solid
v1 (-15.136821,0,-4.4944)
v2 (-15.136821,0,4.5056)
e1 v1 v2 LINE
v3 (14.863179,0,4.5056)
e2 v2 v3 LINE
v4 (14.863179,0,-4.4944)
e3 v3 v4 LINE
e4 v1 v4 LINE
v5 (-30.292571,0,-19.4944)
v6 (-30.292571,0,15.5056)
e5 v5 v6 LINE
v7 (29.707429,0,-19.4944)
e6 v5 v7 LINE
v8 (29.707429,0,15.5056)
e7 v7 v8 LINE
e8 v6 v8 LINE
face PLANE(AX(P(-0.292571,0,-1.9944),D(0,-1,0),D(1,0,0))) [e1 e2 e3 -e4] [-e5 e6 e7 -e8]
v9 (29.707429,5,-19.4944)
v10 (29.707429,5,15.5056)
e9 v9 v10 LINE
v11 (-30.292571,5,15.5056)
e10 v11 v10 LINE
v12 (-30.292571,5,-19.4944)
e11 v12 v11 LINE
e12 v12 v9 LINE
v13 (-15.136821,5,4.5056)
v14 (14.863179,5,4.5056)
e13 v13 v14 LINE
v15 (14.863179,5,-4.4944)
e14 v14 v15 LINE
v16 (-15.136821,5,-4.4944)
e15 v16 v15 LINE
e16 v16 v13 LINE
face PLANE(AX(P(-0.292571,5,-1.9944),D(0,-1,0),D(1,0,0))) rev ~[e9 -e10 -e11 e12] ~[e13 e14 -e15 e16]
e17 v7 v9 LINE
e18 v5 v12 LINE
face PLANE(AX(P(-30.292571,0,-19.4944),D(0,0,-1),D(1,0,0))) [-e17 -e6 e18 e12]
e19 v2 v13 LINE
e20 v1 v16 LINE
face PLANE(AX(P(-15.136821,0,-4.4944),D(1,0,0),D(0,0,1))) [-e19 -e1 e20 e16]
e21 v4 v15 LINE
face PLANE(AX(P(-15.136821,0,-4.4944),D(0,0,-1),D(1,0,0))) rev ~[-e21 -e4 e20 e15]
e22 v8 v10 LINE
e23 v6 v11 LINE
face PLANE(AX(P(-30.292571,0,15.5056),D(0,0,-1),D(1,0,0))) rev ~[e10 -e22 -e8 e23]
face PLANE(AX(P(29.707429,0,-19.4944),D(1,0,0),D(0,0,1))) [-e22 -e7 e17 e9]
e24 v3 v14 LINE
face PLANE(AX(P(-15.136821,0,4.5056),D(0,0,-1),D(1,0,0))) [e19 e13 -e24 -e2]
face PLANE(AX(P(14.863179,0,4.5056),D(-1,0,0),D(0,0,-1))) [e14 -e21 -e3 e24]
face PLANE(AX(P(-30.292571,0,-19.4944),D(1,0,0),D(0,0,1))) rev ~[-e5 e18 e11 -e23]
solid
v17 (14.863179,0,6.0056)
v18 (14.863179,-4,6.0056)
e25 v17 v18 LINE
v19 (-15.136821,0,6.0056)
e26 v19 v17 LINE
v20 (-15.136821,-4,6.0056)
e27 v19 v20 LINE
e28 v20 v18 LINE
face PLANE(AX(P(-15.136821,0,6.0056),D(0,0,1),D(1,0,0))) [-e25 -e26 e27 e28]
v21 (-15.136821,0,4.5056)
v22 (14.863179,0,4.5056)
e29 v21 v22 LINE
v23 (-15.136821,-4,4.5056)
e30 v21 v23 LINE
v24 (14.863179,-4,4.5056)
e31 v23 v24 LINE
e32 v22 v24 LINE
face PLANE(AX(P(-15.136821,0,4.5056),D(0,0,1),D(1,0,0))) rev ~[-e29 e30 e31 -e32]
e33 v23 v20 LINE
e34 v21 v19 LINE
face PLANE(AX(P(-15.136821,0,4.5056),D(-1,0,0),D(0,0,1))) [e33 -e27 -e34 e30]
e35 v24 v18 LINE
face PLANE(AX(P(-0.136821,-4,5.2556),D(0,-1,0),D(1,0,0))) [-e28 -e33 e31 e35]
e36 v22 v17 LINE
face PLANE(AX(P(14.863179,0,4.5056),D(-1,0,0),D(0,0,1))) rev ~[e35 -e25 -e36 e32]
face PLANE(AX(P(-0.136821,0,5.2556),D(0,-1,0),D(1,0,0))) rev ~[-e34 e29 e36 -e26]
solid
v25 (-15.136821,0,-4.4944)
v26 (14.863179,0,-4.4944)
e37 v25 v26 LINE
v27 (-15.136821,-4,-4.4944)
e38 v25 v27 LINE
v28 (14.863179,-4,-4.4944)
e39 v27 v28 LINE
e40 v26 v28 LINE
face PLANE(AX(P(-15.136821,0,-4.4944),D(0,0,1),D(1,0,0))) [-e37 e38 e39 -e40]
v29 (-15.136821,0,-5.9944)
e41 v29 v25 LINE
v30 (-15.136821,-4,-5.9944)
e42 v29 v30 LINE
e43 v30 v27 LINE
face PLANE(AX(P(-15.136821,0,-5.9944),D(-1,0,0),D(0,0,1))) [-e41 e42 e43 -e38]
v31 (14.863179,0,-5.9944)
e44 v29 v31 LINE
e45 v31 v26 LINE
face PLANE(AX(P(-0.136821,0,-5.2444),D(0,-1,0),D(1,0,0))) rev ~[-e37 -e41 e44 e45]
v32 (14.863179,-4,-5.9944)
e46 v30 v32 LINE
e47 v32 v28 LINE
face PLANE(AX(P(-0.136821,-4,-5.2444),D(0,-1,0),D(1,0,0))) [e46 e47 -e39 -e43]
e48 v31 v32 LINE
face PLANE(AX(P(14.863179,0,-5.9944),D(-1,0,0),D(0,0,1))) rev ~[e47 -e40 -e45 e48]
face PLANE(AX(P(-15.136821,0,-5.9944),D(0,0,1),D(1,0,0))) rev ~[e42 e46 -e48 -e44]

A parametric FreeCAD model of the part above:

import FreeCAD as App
import Part
import Sketcher

doc = App.newDocument("Part")
body = doc.addObject("PartDesign::Body", "Body")
body.AllowCompound = True

sketch1 = body.newObject("Sketcher::SketchObject", "Sketch")
sketch1.AttachmentSupport = (doc.getObject("XZ_Plane"), [""])
sketch1.MapMode = "FlatFace"
sketch1.addGeometry(Part.LineSegment(App.Vector(-15.1, 6, 0), App.Vector(-15.1, 4.5, 0)), False)
sketch1.addGeometry(Part.LineSegment(App.Vector(-15.1, 4.5, 0), App.Vector(14.9, 4.5, 0)), False)
sketch1.addGeometry(Part.LineSegment(App.Vector(14.9, 4.5, 0), App.Vector(14.9, 6, 0)), False)
sketch1.addGeometry(Part.LineSegment(App.Vector(14.9, 6, 0), App.Vector(-15.1, 6, 0)), False)
sketch1.addGeometry(Part.LineSegment(App.Vector(-15.1, -4.5, 0), App.Vector(-15.1, -6, 0)), False)
sketch1.addGeometry(Part.LineSegment(App.Vector(-15.1, -6, 0), App.Vector(14.9, -6, 0)), False)
sketch1.addGeometry(Part.LineSegment(App.Vector(14.9, -6, 0), App.Vector(14.9, -4.5, 0)), False)
sketch1.addGeometry(Part.LineSegment(App.Vector(14.9, -4.5, 0), App.Vector(-15.1, -4.5, 0)), False)
sketch1.addConstraint(Sketcher.Constraint("Coincident", 0, 2, 1, 1))
sketch1.addConstraint(Sketcher.Constraint("Coincident", 1, 2, 2, 1))
sketch1.addConstraint(Sketcher.Constraint("Coincident", 2, 2, 3, 1))
sketch1.addConstraint(Sketcher.Constraint("Coincident", 3, 2, 0, 1))
sketch1.addConstraint(Sketcher.Constraint("Coincident", 4, 2, 5, 1))
sketch1.addConstraint(Sketcher.Constraint("Coincident", 5, 2, 6, 1))
sketch1.addConstraint(Sketcher.Constraint("Coincident", 6, 2, 7, 1))
sketch1.addConstraint(Sketcher.Constraint("Coincident", 7, 2, 4, 1))
sketch1.addConstraint(Sketcher.Constraint("Vertical", 0))
sketch1.addConstraint(Sketcher.Constraint("Horizontal", 1))
sketch1.addConstraint(Sketcher.Constraint("Vertical", 2))
sketch1.addConstraint(Sketcher.Constraint("Horizontal", 3))
sketch1.addConstraint(Sketcher.Constraint("Vertical", 4))
sketch1.addConstraint(Sketcher.Constraint("Horizontal", 5))
sketch1.addConstraint(Sketcher.Constraint("Vertical", 6))
sketch1.addConstraint(Sketcher.Constraint("Horizontal", 7))
sketch1.addConstraint(Sketcher.Constraint("Vertical", 3, 2, 4, 2))
sketch1.addConstraint(Sketcher.Constraint("Vertical", 2, 2, 5, 2))
sketch1.addConstraint(Sketcher.Constraint("Equal", 2, 4))
sketch1.addConstraint(Sketcher.Constraint("DistanceX", 1, 1, 1, 2, 30.0))
sketch1.addConstraint(Sketcher.Constraint("DistanceY", 0, 2, 0, 1, 1.5))
sketch1.addConstraint(Sketcher.Constraint("DistanceY", 4, 2, 3, 2, 12.0))
sketch1.addConstraint(Sketcher.Constraint("DistanceY", -1, 1, 0, 2, 4.5056))
sketch1.addConstraint(Sketcher.Constraint("DistanceX", 0, 2, -1, 1, 15.136821))
pad1 = body.newObject("PartDesign::Pad", "Pad")
pad1.Profile = sketch1
pad1.Length = 4
body2 = doc.addObject("PartDesign::Body", "Body001")

sketch2 = body2.newObject("Sketcher::SketchObject", "Sketch001")
sketch2.AttachmentSupport = (doc.getObject("XZ_Plane001"), [""])
sketch2.MapMode = "FlatFace"
sketch2.addGeometry(Part.LineSegment(App.Vector(-30, 16, 0), App.Vector(-30, -19, 0)), False)
sketch2.addGeometry(Part.LineSegment(App.Vector(-30, -19, 0), App.Vector(30, -19, 0)), False)
sketch2.addGeometry(Part.LineSegment(App.Vector(30, -19, 0), App.Vector(30, 16, 0)), False)
sketch2.addGeometry(Part.LineSegment(App.Vector(30, 16, 0), App.Vector(-30, 16, 0)), False)
sketch2.addGeometry(Part.LineSegment(App.Vector(-15, -4, 0), App.Vector(-15, 5, 0)), False)
sketch2.addGeometry(Part.LineSegment(App.Vector(-15, 5, 0), App.Vector(15, 5, 0)), False)
sketch2.addGeometry(Part.LineSegment(App.Vector(15, 5, 0), App.Vector(15, -4, 0)), False)
sketch2.addGeometry(Part.LineSegment(App.Vector(15, -4, 0), App.Vector(-15, -4, 0)), False)
sketch2.addConstraint(Sketcher.Constraint("Coincident", 0, 2, 1, 1))
sketch2.addConstraint(Sketcher.Constraint("Coincident", 1, 2, 2, 1))
sketch2.addConstraint(Sketcher.Constraint("Coincident", 2, 2, 3, 1))
sketch2.addConstraint(Sketcher.Constraint("Coincident", 3, 2, 0, 1))
sketch2.addConstraint(Sketcher.Constraint("Coincident", 4, 2, 5, 1))
sketch2.addConstraint(Sketcher.Constraint("Coincident", 5, 2, 6, 1))
sketch2.addConstraint(Sketcher.Constraint("Coincident", 6, 2, 7, 1))
sketch2.addConstraint(Sketcher.Constraint("Coincident", 7, 2, 4, 1))
sketch2.addConstraint(Sketcher.Constraint("Vertical", 0))
sketch2.addConstraint(Sketcher.Constraint("Horizontal", 1))
sketch2.addConstraint(Sketcher.Constraint("Vertical", 2))
sketch2.addConstraint(Sketcher.Constraint("Horizontal", 3))
sketch2.addConstraint(Sketcher.Constraint("Vertical", 4))
sketch2.addConstraint(Sketcher.Constraint("Horizontal", 5))
sketch2.addConstraint(Sketcher.Constraint("Vertical", 6))
sketch2.addConstraint(Sketcher.Constraint("Horizontal", 7))
sketch2.addConstraint(Sketcher.Constraint("DistanceX", 1, 1, 1, 2, 60.0))
sketch2.addConstraint(Sketcher.Constraint("DistanceX", 5, 1, 5, 2, 30.0))
sketch2.addConstraint(Sketcher.Constraint("DistanceY", 0, 2, 0, 1, 35.0))
sketch2.addConstraint(Sketcher.Constraint("DistanceY", 4, 1, 4, 2, 9.0))
sketch2.addConstraint(Sketcher.Constraint("DistanceY", 4, 2, 3, 2, 11.0))
sketch2.addConstraint(Sketcher.Constraint("DistanceY", 0, 2, -1, 1, 19.4944))
sketch2.addConstraint(Sketcher.Constraint("DistanceX", 0, 2, -1, 1, 30.292571))
sketch2.addConstraint(Sketcher.Constraint("DistanceX", 4, 2, -1, 1, 15.136821))
pad2 = body2.newObject("PartDesign::Pad", "Pad001")
pad2.Profile = sketch2
pad2.Length = 5
pad2.Reversed = True

doc.recompute()
